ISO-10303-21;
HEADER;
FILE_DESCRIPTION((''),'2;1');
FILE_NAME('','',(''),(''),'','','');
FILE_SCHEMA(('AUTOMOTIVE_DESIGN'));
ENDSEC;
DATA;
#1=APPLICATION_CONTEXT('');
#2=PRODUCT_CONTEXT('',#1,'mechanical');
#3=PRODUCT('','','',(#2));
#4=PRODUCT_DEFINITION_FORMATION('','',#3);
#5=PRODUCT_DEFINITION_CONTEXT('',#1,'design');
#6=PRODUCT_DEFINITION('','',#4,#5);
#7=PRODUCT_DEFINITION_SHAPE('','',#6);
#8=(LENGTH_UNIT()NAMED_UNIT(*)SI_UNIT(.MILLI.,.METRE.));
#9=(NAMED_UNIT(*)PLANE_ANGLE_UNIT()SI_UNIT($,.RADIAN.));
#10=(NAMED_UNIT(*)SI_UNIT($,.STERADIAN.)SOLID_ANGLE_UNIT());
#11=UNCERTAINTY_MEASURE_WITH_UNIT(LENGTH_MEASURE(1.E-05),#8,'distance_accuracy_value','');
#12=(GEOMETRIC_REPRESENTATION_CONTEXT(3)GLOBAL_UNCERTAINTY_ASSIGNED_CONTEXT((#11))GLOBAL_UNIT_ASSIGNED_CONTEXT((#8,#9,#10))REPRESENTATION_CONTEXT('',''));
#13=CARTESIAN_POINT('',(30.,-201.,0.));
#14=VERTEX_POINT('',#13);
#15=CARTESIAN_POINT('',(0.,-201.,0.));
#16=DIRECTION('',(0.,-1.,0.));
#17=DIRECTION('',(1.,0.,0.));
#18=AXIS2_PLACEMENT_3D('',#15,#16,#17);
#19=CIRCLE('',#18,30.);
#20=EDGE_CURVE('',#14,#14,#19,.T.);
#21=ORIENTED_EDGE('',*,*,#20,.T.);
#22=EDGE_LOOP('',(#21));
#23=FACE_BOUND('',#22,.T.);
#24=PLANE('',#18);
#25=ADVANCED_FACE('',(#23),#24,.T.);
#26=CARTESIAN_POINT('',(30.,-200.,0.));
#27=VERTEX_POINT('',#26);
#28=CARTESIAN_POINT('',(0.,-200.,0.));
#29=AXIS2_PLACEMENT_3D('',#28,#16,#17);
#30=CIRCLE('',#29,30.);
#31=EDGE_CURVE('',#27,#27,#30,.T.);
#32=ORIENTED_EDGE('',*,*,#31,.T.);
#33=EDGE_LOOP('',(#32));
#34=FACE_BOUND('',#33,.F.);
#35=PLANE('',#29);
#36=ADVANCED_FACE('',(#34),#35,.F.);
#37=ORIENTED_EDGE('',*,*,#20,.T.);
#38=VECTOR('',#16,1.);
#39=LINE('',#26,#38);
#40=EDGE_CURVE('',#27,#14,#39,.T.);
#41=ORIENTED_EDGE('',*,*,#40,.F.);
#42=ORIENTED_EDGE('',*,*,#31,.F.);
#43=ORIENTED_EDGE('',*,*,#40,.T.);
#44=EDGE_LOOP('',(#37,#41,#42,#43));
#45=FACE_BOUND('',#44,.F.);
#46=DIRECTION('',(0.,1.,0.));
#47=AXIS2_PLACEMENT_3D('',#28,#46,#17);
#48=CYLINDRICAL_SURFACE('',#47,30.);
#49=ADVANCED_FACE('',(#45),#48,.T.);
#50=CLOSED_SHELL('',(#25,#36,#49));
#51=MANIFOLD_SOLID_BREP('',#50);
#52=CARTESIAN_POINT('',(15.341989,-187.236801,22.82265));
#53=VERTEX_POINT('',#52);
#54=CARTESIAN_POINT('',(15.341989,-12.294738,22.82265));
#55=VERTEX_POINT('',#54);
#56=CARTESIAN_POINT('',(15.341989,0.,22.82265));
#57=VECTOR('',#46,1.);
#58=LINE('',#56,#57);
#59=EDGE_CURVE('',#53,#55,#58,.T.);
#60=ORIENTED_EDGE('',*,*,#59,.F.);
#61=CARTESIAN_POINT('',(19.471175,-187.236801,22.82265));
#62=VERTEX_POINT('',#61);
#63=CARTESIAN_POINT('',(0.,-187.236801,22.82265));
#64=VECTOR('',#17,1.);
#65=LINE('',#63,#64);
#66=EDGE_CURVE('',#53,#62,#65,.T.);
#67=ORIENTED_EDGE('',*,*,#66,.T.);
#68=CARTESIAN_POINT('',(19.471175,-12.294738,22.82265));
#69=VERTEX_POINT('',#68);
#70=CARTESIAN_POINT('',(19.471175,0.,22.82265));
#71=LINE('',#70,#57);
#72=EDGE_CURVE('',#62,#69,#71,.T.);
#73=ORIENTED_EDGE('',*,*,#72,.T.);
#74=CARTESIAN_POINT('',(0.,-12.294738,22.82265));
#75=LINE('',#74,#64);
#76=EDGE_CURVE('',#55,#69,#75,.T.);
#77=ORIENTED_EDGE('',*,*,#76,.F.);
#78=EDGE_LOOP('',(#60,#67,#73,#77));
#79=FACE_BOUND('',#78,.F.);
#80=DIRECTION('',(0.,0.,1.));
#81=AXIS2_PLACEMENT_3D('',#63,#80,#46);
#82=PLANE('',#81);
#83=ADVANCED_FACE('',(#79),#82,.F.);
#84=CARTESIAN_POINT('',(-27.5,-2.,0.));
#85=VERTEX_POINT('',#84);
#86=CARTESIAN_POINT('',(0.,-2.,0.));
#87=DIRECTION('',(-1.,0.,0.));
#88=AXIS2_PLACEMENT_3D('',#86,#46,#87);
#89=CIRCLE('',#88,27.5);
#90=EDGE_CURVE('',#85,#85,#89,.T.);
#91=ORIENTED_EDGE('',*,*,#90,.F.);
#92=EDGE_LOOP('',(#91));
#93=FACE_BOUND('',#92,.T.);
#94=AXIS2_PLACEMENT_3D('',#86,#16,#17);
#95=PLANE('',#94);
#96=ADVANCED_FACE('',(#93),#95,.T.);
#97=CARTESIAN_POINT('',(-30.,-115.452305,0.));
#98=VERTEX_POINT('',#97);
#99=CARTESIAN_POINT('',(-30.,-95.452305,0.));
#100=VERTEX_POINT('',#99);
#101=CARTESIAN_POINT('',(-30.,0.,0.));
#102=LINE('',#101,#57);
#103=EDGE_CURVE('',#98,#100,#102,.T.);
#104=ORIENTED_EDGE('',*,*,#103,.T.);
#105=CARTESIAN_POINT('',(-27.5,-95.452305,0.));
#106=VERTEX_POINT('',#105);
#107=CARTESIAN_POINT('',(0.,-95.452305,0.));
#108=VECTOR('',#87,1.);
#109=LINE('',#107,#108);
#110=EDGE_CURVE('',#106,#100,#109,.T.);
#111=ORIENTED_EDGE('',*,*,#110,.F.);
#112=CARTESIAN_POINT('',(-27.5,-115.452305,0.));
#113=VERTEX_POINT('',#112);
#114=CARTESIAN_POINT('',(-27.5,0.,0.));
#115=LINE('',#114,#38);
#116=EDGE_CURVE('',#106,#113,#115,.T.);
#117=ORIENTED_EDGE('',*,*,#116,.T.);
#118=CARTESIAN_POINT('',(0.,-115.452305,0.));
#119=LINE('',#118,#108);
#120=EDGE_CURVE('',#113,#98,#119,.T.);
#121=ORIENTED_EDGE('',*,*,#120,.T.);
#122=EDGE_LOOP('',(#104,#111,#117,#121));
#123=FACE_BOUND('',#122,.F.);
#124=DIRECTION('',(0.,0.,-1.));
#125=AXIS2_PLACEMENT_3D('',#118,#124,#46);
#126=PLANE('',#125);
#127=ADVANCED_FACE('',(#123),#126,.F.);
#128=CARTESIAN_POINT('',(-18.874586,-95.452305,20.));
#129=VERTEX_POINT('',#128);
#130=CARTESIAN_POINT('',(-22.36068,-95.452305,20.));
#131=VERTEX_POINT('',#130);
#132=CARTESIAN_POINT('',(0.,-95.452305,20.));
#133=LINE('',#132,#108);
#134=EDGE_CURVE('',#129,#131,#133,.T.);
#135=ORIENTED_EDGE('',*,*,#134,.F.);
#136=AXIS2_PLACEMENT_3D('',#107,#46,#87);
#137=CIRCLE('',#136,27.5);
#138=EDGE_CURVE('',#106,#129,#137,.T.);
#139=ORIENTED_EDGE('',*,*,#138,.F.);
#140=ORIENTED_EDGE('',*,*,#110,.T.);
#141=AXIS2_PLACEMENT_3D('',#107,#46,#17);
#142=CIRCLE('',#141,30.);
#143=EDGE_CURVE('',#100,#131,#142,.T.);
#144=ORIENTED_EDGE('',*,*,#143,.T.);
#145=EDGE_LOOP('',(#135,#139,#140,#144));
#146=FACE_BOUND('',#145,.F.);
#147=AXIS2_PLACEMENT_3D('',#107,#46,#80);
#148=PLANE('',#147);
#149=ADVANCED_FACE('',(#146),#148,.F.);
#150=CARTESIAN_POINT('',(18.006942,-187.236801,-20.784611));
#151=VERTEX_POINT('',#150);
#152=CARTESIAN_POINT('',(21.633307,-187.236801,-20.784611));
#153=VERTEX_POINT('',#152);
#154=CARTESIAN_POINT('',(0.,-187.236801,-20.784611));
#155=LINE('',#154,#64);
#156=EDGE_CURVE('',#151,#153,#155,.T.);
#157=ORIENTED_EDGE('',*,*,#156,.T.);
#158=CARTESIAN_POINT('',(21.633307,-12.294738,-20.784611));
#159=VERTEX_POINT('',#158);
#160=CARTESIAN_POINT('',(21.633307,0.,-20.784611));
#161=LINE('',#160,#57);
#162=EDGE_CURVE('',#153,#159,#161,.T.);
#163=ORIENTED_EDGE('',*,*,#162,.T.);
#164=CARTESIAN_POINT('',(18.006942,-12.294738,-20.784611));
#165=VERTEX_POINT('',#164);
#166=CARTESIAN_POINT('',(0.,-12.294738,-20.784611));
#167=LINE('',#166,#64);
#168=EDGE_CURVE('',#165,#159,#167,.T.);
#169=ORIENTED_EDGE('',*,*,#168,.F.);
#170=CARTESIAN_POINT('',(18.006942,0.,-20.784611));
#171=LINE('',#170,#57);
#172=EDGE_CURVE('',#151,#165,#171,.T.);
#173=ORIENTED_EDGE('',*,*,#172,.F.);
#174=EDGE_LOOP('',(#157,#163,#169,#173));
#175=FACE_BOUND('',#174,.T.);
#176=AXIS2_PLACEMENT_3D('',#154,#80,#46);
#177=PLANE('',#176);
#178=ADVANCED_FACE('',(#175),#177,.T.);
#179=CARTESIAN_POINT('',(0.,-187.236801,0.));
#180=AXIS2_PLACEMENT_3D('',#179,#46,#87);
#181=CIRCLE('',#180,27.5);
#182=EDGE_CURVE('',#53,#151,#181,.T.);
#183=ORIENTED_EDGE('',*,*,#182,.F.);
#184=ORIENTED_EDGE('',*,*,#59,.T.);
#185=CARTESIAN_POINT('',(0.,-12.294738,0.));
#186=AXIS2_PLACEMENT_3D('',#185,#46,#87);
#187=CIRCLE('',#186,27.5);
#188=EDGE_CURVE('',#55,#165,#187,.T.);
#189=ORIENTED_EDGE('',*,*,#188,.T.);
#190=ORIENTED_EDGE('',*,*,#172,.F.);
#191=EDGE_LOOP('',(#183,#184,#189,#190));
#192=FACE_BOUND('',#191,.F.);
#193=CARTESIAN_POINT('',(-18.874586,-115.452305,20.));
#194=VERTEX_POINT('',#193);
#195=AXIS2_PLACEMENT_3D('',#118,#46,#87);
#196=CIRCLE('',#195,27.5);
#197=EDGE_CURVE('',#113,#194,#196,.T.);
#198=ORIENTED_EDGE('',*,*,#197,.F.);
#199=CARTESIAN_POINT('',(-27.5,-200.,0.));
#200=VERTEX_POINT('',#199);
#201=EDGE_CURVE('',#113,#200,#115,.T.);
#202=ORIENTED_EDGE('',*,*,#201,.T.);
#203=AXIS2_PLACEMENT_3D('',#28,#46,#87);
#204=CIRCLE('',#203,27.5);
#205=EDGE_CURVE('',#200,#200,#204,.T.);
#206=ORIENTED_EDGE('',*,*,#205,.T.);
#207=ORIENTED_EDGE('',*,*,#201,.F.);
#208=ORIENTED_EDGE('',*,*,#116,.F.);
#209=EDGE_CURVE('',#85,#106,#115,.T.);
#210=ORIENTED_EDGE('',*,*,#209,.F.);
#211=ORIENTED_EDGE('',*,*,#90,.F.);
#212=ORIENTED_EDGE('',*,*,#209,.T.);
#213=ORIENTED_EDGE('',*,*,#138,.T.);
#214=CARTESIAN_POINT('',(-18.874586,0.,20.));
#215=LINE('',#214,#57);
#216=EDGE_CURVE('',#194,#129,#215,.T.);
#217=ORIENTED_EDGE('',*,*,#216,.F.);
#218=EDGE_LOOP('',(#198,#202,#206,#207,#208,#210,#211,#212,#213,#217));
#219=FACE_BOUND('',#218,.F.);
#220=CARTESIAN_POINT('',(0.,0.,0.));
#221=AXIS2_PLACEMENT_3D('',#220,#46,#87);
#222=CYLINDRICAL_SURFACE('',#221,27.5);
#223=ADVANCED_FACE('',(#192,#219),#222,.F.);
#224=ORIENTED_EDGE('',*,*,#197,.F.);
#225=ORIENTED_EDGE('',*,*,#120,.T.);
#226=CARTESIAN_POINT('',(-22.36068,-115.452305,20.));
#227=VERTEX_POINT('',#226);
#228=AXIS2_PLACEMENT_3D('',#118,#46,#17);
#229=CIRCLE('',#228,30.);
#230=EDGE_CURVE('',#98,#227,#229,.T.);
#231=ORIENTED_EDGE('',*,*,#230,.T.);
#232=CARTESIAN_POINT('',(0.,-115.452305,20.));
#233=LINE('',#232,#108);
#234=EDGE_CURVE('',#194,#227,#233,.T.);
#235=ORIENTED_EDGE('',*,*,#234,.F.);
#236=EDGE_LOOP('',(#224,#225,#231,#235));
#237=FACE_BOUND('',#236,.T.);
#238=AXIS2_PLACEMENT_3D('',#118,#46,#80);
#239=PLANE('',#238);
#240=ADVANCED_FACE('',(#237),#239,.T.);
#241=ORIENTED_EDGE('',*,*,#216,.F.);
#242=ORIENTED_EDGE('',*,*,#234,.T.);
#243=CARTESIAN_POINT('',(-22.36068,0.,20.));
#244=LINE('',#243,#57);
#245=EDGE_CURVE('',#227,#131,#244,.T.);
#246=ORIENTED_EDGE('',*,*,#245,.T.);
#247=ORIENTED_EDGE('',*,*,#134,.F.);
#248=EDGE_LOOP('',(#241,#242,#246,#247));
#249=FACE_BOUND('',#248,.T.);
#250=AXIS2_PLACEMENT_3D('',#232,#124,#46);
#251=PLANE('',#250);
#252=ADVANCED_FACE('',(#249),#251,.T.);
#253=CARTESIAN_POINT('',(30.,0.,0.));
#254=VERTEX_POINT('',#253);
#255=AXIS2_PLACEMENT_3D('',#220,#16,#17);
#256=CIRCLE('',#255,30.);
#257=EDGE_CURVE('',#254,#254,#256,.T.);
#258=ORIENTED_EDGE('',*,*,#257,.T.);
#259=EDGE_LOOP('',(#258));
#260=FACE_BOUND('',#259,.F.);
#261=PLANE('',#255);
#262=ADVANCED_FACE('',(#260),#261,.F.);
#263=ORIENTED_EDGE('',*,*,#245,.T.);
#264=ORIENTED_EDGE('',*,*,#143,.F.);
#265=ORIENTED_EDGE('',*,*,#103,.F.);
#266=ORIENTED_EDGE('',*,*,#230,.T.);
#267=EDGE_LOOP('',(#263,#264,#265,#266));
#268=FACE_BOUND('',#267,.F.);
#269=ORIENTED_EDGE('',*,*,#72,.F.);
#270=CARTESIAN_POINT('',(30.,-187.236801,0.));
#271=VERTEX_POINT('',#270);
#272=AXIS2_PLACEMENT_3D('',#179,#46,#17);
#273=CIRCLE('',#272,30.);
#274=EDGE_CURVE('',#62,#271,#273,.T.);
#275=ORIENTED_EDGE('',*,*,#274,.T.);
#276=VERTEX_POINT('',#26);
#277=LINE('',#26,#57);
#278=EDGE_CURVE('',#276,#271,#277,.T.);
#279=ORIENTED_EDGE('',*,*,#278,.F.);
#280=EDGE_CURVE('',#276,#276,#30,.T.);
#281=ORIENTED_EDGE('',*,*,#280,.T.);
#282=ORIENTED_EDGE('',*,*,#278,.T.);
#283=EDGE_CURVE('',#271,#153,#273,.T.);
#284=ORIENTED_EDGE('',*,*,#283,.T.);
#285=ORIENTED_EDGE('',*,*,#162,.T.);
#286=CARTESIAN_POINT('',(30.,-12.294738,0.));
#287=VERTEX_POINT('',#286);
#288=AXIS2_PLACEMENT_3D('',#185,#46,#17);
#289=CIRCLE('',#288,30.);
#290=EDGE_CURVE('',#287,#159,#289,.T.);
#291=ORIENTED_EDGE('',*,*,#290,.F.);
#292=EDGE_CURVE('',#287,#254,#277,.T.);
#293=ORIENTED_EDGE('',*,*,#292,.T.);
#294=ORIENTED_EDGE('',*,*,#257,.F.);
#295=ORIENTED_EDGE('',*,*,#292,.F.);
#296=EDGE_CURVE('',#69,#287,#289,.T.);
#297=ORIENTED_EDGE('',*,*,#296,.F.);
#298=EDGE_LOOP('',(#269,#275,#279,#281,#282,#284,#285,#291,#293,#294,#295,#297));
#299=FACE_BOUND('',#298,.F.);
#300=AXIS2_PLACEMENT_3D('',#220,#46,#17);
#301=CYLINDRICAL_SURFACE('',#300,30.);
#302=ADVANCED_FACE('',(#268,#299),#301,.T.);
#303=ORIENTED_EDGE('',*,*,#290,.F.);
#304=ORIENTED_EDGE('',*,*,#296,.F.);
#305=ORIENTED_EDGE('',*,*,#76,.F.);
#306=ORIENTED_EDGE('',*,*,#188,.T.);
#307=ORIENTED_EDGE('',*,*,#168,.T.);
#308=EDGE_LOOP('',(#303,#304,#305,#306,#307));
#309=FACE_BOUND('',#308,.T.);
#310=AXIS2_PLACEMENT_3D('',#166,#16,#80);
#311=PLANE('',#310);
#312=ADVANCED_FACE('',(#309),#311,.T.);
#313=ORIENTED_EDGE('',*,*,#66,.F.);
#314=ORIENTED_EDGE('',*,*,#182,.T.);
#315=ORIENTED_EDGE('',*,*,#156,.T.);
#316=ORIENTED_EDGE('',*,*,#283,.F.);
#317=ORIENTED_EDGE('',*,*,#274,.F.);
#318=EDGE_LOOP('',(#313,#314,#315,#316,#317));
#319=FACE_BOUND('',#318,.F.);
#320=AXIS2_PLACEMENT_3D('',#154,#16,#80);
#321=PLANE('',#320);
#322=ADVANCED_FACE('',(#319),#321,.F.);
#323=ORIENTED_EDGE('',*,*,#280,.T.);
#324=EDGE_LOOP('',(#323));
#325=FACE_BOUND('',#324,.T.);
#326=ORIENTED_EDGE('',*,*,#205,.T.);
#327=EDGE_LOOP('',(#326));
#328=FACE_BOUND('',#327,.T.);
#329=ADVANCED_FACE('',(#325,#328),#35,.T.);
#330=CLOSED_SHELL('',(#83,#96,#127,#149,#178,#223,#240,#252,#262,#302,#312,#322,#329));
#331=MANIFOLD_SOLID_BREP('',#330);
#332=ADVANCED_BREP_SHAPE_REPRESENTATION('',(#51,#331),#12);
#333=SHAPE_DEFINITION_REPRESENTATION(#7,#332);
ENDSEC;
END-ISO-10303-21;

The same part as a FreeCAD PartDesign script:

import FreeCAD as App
import Part
import Sketcher

V = App.Vector


def add_polygon(sketch, points):
    """Adds a closed chain of lines whose ends are joined by coincident constraints."""
    first, n = sketch.GeometryCount, len(points)
    for a, b in zip(points, points[1:] + points[:1]):
        sketch.addGeometry(Part.LineSegment(App.Vector(*a, 0), App.Vector(*b, 0)), False)
    for i in range(n):
        sketch.addConstraint(Sketcher.Constraint("Coincident", first + i, 2, first + (i + 1) % n, 1))

doc = App.newDocument("Part")
body = doc.addObject("PartDesign::Body", "Body")

# Sketch on XZ plane
sketch1 = body.newObject("Sketcher::SketchObject", "Sketch")
sketch1.AttachmentSupport = (doc.getObject("XZ_Plane"), [""])
sketch1.MapMode = "FlatFace"
sketch1.addGeometry(Part.Circle(V(0, 0, 0), V(0, 0, 1), 30), False)
sketch1.addConstraint([
    Sketcher.Constraint("Coincident", 0, 3, -1, 1),
    Sketcher.Constraint("Diameter", 0, 60.0),
])
pad1 = body.newObject("PartDesign::Pad", "Pad")
pad1.Profile = sketch1
pad1.Length = 200

# Sketch on XZ plane
sketch2 = body.newObject("Sketcher::SketchObject", "Sketch001")
sketch2.AttachmentSupport = (doc.getObject("XZ_Plane"), [""])
sketch2.MapMode = "FlatFace"
sketch2.addGeometry(Part.Circle(V(0, 0, 0), V(0, 0, 1), 27.5), False)
sketch2.addConstraint([
    Sketcher.Constraint("Coincident", 0, 3, -1, 1),
    Sketcher.Constraint("Diameter", 0, 55.0),
])
pocket1 = body.newObject("PartDesign::Pocket", "Pocket")
pocket1.Profile = sketch2
pocket1.Type = "ThroughAll"
pocket1.Reversed = True

# Sketch on XZ plane
sketch3 = body.newObject("Sketcher::SketchObject", "Sketch002")
sketch3.AttachmentSupport = (doc.getObject("XZ_Plane"), [""])
sketch3.MapMode = "FlatFace"
sketch3.addGeometry(Part.Circle(V(0, 0, 0), V(0, 0, 1), 30), False)
sketch3.addConstraint([
    Sketcher.Constraint("Coincident", 0, 3, -1, 1),
    Sketcher.Constraint("Diameter", 0, 60.0),
])
pad2 = body.newObject("PartDesign::Pad", "Pad001")
pad2.Profile = sketch3
pad2.Length = 2

# Sketch on YZ plane
sketch4 = body.newObject("Sketcher::SketchObject", "Sketch003")
sketch4.AttachmentSupport = (doc.getObject("YZ_Plane"), [""])
sketch4.MapMode = "FlatFace"
add_polygon(sketch4, [(-115.452305, 20), (-115.452305, 0), (-95.452305, 0), (-95.452305, 20)])  # lines 0-3
sketch4.addConstraint([
    Sketcher.Constraint("Vertical", 0),
    Sketcher.Constraint("Horizontal", 1),
    Sketcher.Constraint("Vertical", 2),
    Sketcher.Constraint("Horizontal", 3),
    Sketcher.Constraint("PointOnObject", 0, 2, -1),
    Sketcher.Constraint("Equal", 3, 0),
    Sketcher.Constraint("DistanceX", 1, 1, 1, 2, 20.0),
    Sketcher.Constraint("DistanceX", 0, 2, -1, 1, 115.452305),
])
pocket2 = body.newObject("PartDesign::Pocket", "Pocket001")
pocket2.Profile = sketch4
pocket2.Length = 67.5

# Sketch on YZ plane
sketch5 = body.newObject("Sketcher::SketchObject", "Sketch004")
sketch5.AttachmentSupport = (doc.getObject("YZ_Plane"), [""])
sketch5.MapMode = "FlatFace"
add_polygon(sketch5, [(-187.236801, 22.82265), (-187.236801, -20.784611), (-12.294738, -20.784611), (-12.294738, 22.82265)])  # lines 0-3
sketch5.addConstraint([
    Sketcher.Constraint("Vertical", 0),
    Sketcher.Constraint("Horizontal", 1),
    Sketcher.Constraint("Vertical", 2),
    Sketcher.Constraint("Horizontal", 3),
    Sketcher.Constraint("DistanceY", 0, 2, 0, 1, 43.607261),
    Sketcher.Constraint("DistanceX", 0, 2, -1, 1, 187.236801),
    Sketcher.Constraint("DistanceX", 1, 1, 1, 2, 174.942063),
    Sketcher.Constraint("DistanceY", 0, 2, -1, 1, 20.784611),
])
pocket3 = body.newObject("PartDesign::Pocket", "Pocket002")
pocket3.Profile = sketch5
pocket3.Length = 173
pocket3.Reversed = True
body2 = doc.addObject("PartDesign::Body", "Body001")

# Sketch on XZ plane
sketch6 = body2.newObject("Sketcher::SketchObject", "Sketch005")
sketch6.AttachmentSupport = (doc.getObject("XZ_Plane001"), [""])
sketch6.MapMode = "FlatFace"
sketch6.AttachmentOffset = App.Placement(V(0, 0, 200), App.Rotation())
sketch6.addGeometry(Part.Circle(V(0, 0, 0), V(0, 0, 1), 30), False)
sketch6.addConstraint([
    Sketcher.Constraint("Coincident", 0, 3, -1, 1),
    Sketcher.Constraint("Diameter", 0, 60.0),
])
pad3 = body2.newObject("PartDesign::Pad", "Pad002")
pad3.Profile = sketch6
pad3.Length = 1

doc.recompute()
